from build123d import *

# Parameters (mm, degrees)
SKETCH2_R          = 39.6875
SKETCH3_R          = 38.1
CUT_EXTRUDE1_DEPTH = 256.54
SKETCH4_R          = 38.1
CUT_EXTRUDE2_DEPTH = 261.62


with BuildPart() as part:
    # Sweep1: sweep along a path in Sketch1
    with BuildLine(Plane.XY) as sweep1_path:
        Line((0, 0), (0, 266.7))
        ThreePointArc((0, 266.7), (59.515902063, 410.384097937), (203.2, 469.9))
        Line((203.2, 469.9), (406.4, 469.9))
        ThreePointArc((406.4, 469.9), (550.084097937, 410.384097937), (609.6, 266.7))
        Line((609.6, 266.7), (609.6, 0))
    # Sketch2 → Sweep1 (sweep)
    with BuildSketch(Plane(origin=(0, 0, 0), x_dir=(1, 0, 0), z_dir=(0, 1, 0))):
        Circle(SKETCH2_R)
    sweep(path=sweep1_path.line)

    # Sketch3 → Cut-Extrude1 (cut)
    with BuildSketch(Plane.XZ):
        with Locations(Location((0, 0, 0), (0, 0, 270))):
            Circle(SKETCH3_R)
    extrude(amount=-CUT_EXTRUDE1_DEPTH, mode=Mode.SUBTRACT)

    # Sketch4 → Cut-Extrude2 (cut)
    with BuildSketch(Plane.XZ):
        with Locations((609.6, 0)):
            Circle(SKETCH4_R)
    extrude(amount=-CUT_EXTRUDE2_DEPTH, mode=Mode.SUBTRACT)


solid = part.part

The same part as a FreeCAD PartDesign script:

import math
import FreeCAD as App
import Part
import Sketcher
Q = App.Units.Quantity

doc = App.newDocument("Part")
params = doc.addObject("Spreadsheet::Sheet", "Params")
for row, (alias, value) in enumerate([
    ("sketch1_diameter", "3.125 in"),
    ("sketch2_radius", "8 in"),
    ("sketch2_width", "8 in"),
    ("sketch2_height", "10.5 in"),
    ("sketch3_diameter", "3 in"),
    ("pocket1_length", "10.1 in"),
    ("sketch4_diameter", "3 in"),
    ("pocket2_length", "10.3 in"),
], start=1):
    params.set(f"A{row}", alias)
    params.set(f"B{row}", "=" + value)
    params.setAlias(f"B{row}", alias)

body = doc.addObject("PartDesign::Body", "Body")

# Sketch on XZ plane
sketch1 = body.newObject("Sketcher::SketchObject", "Sketch")
sketch1.AttachmentSupport = (doc.getObject("XZ_Plane"), [""])
sketch1.MapMode = "FlatFace"
sketch1.addGeometry(Part.Circle(App.Vector(0, 0, 0), App.Vector(0, 0, 1), 40), False)
sketch1.addConstraint([
    Sketcher.Constraint("Coincident", 0, 3, -1, 1),
    Sketcher.Constraint("Diameter", 0, Q("3.125 in")),
])
sketch1.setExpression("Constraints[1]", "Params.sketch1_diameter")

# Sketch on XY plane
sketch2 = body.newObject("Sketcher::SketchObject", "Sketch001")
sketch2.AttachmentSupport = (doc.getObject("XY_Plane"), [""])
sketch2.MapMode = "FlatFace"
sketch2.addGeometry([
    Part.LineSegment(App.Vector(0, 0, 0), App.Vector(0, 267, 0)),  # 0
    Part.ArcOfCircle(Part.Circle(App.Vector(203, 267, 0), App.Vector(0, 0, 1), 203), math.radians(90), math.radians(180)),  # 1
    Part.LineSegment(App.Vector(203, 470, 0), App.Vector(406, 470, 0)),  # 2
    Part.ArcOfCircle(Part.Circle(App.Vector(406, 267, 0), App.Vector(0, 0, 1), 203), math.radians(0), math.radians(90)),  # 3
    Part.LineSegment(App.Vector(610, 267, 0), App.Vector(610, 0, 0)),  # 4
], False)
sketch2.addConstraint([
    Sketcher.Constraint("Tangent", 0, 2, 1, 2),
    Sketcher.Constraint("Tangent", 1, 1, 2, 1),
    Sketcher.Constraint("Tangent", 2, 2, 3, 2),
    Sketcher.Constraint("Tangent", 3, 1, 4, 1),
    Sketcher.Constraint("Vertical", 0),
    Sketcher.Constraint("Horizontal", 2),
    Sketcher.Constraint("Vertical", 4),
    Sketcher.Constraint("Coincident", 0, 1, -1, 1),
    Sketcher.Constraint("Equal", 1, 3),
    Sketcher.Constraint("PointOnObject", 4, 2, -1),
    Sketcher.Constraint("Radius", 1, Q("8 in")),
    Sketcher.Constraint("DistanceX", 2, 1, 2, 2, Q("8 in")),
    Sketcher.Constraint("DistanceY", 0, 1, 0, 2, Q("10.5 in")),
])
sketch2.setExpression("Constraints[10]", "Params.sketch2_radius")
sketch2.setExpression("Constraints[11]", "Params.sketch2_width")
sketch2.setExpression("Constraints[12]", "Params.sketch2_height")
doc.recompute()

additivepipe = body.newObject("PartDesign::AdditivePipe", "AdditivePipe")
additivepipe.Profile = sketch1
additivepipe.Spine = (sketch2, ["Edge1", "Edge2", "Edge3", "Edge4", "Edge5"])

# Sketch on XZ plane
sketch3 = body.newObject("Sketcher::SketchObject", "Sketch002")
sketch3.AttachmentSupport = (doc.getObject("XZ_Plane"), [""])
sketch3.MapMode = "FlatFace"
sketch3.addGeometry(Part.Circle(App.Vector(0, 0, 0), App.Vector(0, 0, 1), 38), False)
sketch3.addConstraint([
    Sketcher.Constraint("Coincident", 0, 3, -1, 1),
    Sketcher.Constraint("Diameter", 0, Q("3 in")),
])
sketch3.setExpression("Constraints[1]", "Params.sketch3_diameter")
pocket1 = body.newObject("PartDesign::Pocket", "Pocket")
pocket1.Profile = sketch3
pocket1.setExpression("Length", "Params.pocket1_length")

# Sketch on XZ plane
sketch4 = body.newObject("Sketcher::SketchObject", "Sketch003")
sketch4.AttachmentSupport = (doc.getObject("XZ_Plane"), [""])
sketch4.MapMode = "FlatFace"
sketch4.addGeometry(Part.Circle(App.Vector(610, 0, 0), App.Vector(0, 0, 1), 38), False)
sketch4.addConstraint([
    Sketcher.Constraint("PointOnObject", 0, 3, -1),
    Sketcher.Constraint("Diameter", 0, Q("3 in")),
    Sketcher.Constraint("DistanceX", -1, 1, 0, 3, Q("24 in")),
])
sketch4.setExpression("Constraints[1]", "Params.sketch4_diameter")
pocket2 = body.newObject("PartDesign::Pocket", "Pocket001")
pocket2.Profile = sketch4
pocket2.setExpression("Length", "Params.pocket2_length")

doc.recompute()
